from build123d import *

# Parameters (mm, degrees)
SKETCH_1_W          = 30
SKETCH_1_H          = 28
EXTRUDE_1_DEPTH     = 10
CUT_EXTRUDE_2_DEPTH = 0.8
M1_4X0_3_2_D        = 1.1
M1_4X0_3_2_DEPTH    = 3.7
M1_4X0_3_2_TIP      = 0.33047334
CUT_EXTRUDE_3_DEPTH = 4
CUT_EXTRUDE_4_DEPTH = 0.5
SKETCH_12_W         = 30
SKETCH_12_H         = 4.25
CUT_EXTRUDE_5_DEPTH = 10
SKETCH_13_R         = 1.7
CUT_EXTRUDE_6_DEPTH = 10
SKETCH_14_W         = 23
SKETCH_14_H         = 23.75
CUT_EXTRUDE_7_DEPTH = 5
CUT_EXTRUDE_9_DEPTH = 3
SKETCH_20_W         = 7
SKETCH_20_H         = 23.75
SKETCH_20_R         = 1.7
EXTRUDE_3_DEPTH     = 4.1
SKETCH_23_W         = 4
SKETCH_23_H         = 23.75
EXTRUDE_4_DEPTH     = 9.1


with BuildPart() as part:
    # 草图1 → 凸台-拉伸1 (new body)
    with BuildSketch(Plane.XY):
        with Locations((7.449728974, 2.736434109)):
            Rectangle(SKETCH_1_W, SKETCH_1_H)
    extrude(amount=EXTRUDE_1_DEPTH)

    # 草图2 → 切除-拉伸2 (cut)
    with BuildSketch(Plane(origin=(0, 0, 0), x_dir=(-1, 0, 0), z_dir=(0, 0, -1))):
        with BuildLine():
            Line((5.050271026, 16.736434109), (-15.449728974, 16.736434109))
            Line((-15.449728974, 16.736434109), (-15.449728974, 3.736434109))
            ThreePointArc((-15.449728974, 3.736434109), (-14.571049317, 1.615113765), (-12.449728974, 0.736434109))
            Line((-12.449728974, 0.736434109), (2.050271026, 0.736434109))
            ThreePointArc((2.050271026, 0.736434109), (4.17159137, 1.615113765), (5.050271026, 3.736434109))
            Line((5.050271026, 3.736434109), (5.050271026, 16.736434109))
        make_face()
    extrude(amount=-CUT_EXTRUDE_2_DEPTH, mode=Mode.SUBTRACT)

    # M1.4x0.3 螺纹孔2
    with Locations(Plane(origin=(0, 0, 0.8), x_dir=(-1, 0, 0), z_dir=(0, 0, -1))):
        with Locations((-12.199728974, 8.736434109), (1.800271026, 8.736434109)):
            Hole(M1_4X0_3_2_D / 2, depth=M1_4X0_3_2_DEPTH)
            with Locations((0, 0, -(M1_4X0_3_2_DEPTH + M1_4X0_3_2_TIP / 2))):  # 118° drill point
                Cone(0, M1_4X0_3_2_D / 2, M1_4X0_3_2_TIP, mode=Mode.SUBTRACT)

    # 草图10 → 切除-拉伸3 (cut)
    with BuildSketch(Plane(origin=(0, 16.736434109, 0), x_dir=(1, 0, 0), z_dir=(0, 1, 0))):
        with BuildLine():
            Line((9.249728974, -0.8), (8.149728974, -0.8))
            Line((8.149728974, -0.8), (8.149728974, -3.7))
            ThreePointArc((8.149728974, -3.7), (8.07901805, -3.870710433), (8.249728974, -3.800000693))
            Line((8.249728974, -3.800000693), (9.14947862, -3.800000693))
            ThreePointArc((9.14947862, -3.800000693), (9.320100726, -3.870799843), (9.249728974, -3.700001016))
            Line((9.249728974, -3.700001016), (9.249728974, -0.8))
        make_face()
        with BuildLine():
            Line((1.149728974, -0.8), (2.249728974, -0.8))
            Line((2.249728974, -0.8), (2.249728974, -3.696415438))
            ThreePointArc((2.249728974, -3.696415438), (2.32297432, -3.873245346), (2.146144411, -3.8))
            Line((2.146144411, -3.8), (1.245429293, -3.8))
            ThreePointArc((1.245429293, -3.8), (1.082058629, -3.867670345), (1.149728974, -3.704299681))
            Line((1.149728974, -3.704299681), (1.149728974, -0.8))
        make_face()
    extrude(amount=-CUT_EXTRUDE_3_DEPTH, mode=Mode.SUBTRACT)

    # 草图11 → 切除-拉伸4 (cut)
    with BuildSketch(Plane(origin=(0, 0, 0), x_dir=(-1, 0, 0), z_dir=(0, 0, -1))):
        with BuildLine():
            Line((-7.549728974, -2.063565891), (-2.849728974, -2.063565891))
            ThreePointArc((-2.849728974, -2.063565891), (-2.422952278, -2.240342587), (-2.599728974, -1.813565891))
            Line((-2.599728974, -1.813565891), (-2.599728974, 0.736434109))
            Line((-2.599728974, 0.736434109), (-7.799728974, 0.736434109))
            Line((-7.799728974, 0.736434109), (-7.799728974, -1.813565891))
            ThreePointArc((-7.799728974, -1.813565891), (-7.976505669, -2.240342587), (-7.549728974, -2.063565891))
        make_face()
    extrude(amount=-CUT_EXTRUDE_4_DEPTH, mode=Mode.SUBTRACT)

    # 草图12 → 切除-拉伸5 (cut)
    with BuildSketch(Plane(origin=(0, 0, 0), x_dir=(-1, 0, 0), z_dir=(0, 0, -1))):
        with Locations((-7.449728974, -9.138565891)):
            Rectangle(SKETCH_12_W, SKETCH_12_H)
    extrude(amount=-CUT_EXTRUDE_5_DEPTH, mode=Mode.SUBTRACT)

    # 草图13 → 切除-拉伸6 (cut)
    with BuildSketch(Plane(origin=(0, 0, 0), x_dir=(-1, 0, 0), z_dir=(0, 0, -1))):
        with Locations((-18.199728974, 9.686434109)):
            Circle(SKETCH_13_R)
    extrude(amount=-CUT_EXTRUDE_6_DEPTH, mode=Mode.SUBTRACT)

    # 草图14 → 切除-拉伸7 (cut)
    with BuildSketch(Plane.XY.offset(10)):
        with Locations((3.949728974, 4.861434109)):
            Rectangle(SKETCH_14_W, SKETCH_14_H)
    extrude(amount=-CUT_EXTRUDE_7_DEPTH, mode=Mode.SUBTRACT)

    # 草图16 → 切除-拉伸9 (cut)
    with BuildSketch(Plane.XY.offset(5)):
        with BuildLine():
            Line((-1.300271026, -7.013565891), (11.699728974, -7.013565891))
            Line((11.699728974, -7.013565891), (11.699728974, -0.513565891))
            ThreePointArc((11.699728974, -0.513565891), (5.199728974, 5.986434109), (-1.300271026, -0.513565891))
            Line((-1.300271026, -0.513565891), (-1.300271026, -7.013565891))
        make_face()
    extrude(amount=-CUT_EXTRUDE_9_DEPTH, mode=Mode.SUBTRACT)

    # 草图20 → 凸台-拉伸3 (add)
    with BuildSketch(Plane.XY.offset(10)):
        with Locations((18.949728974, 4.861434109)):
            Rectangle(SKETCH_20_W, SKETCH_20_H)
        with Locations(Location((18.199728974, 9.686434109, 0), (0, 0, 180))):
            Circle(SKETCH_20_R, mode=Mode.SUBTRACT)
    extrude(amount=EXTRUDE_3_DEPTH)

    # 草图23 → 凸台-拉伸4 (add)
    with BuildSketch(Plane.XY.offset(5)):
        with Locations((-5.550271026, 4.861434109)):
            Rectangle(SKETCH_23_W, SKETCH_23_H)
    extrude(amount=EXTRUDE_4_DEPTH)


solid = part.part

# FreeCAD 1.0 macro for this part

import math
import FreeCAD as App
import Part
import Sketcher
Q = App.Units.Quantity

doc = App.newDocument("Part")
params = doc.addObject("Spreadsheet::Sheet", "Params")
for row, (alias, value) in enumerate([
    ("sketch1_width", "30 mm"),
    ("sketch1_height", "28 mm"),
    ("pad1_length", "10 mm"),
    ("sketch2_radius", "3 mm"),
    ("sketch2_height", "13 mm"),
    ("sketch2_width", "20.5 mm"),
    ("pocket1_length", "0.8 mm"),
    ("sketch3_diameter", "1.1 mm"),
    ("hole_diameter", "1.1 mm"),
    ("hole_depth", "3.7 mm"),
    ("sketch4_radius", "0.1 mm"),
    ("sketch4_width", "1.1 mm"),
    ("sketch4_height", "2.9 mm"),
    ("pocket2_length", "4 mm"),
    ("sketch5_radius", "0.25 mm"),
    ("sketch5_width", "4.7 mm"),
    ("sketch5_width2", "5.2 mm"),
    ("sketch5_height", "2.55 mm"),
    ("pocket3_length", "0.5 mm"),
    ("sketch6_width", "30 mm"),
    ("sketch6_height", "4.25 mm"),
    ("pocket4_length", "10 mm"),
    ("sketch7_diameter", "3.4 mm"),
    ("pocket5_length", "10 mm"),
    ("sketch8_width", "23 mm"),
    ("sketch8_height", "23.75 mm"),
    ("pocket6_length", "5 mm"),
    ("sketch9_radius", "6.5 mm"),
    ("sketch9_height", "6.5 mm"),
    ("pocket7_length", "3 mm"),
    ("sketch10_diameter", "3.4 mm"),
    ("sketch10_width", "7 mm"),
    ("sketch10_height", "23.75 mm"),
    ("pad2_length", "4.1 mm"),
    ("sketch11_width", "4 mm"),
    ("sketch11_height", "23.75 mm"),
    ("pad3_length", "9.1 mm"),
], start=1):
    params.set(f"A{row}", alias)
    params.set(f"B{row}", "=" + value)
    params.setAlias(f"B{row}", alias)

body = doc.addObject("PartDesign::Body", "Body")

# Sketch on XY plane
sketch1 = body.newObject("Sketcher::SketchObject", "Sketch")
sketch1.AttachmentSupport = (doc.getObject("XY_Plane"), [""])
sketch1.MapMode = "FlatFace"
sketch1.addGeometry([
    Part.LineSegment(App.Vector(-8, 17, 0), App.Vector(-8, -11, 0)),
    Part.LineSegment(App.Vector(-8, -11, 0), App.Vector(22, -11, 0)),
    Part.LineSegment(App.Vector(22, -11, 0), App.Vector(22, 17, 0)),
    Part.LineSegment(App.Vector(22, 17, 0), App.Vector(-8, 17, 0)),
], False)
sketch1.addConstraint([
    Sketcher.Constraint("Coincident", 0, 2, 1, 1),
    Sketcher.Constraint("Coincident", 1, 2, 2, 1),
    Sketcher.Constraint("Coincident", 2, 2, 3, 1),
    Sketcher.Constraint("Coincident", 3, 2, 0, 1),
    Sketcher.Constraint("Vertical", 0),
    Sketcher.Constraint("Horizontal", 1),
    Sketcher.Constraint("Vertical", 2),
    Sketcher.Constraint("Horizontal", 3),
    Sketcher.Constraint("DistanceX", 1, 1, 1, 2, Q("30 mm")),
    Sketcher.Constraint("DistanceY", 0, 2, 0, 1, Q("28 mm")),
    Sketcher.Constraint("DistanceX", 0, 2, -1, 1, Q("7.550271 mm")),
    Sketcher.Constraint("DistanceY", 0, 2, -1, 1, Q("11.263566 mm")),
])
sketch1.setExpression("Constraints[8]", "Params.sketch1_width")
sketch1.setExpression("Constraints[9]", "Params.sketch1_height")
pad1 = body.newObject("PartDesign::Pad", "Pad")
pad1.Profile = sketch1
pad1.setExpression("Length", "Params.pad1_length")

# Sketch on XY plane
sketch2 = body.newObject("Sketcher::SketchObject", "Sketch001")
sketch2.AttachmentSupport = (doc.getObject("XY_Plane"), [""])
sketch2.MapMode = "FlatFace"
sketch2.addGeometry([
    Part.LineSegment(App.Vector(-5.1, 16.7, 0), App.Vector(15.4, 16.7, 0)),  # 0
    Part.LineSegment(App.Vector(15.4, 16.7, 0), App.Vector(15.4, 3.7, 0)),  # 1
    Part.ArcOfCircle(Part.Circle(App.Vector(12.4, 3.7, 0), App.Vector(0, 0, 1), 3), math.radians(-90), math.radians(0)),  # 2
    Part.LineSegment(App.Vector(12.4, 0.7, 0), App.Vector(-2.1, 0.7, 0)),  # 3
    Part.ArcOfCircle(Part.Circle(App.Vector(-2.1, 3.7, 0), App.Vector(0, 0, 1), 3), math.radians(180), math.radians(270)),  # 4
    Part.LineSegment(App.Vector(-5.1, 3.7, 0), App.Vector(-5.1, 16.7, 0)),  # 5
], False)
sketch2.addConstraint([
    Sketcher.Constraint("Coincident", 0, 2, 1, 1),
    Sketcher.Constraint("Tangent", 1, 2, 2, 2),
    Sketcher.Constraint("Tangent", 2, 1, 3, 1),
    Sketcher.Constraint("Tangent", 3, 2, 4, 2),
    Sketcher.Constraint("Tangent", 4, 1, 5, 1),
    Sketcher.Constraint("Coincident", 5, 2, 0, 1),
    Sketcher.Constraint("Horizontal", 0),
    Sketcher.Constraint("Vertical", 1),
    Sketcher.Constraint("Horizontal", 3),
    Sketcher.Constraint("Vertical", 5),
    Sketcher.Constraint("Equal", 2, 4),
    Sketcher.Constraint("Radius", 2, Q("3 mm")),
    Sketcher.Constraint("DistanceY", 1, 2, 1, 1, Q("13 mm")),
    Sketcher.Constraint("DistanceX", 0, 1, 0, 2, Q("20.5 mm")),
    Sketcher.Constraint("DistanceX", -1, 1, 2, 3, Q("12.449729 mm")),
    Sketcher.Constraint("DistanceY", -1, 1, 2, 3, Q("3.736434 mm")),
])
sketch2.setExpression("Constraints[11]", "Params.sketch2_radius")
sketch2.setExpression("Constraints[12]", "Params.sketch2_height")
sketch2.setExpression("Constraints[13]", "Params.sketch2_width")
pocket1 = body.newObject("PartDesign::Pocket", "Pocket")
pocket1.Profile = sketch2
pocket1.setExpression("Length", "Params.pocket1_length")
pocket1.Reversed = True

# Sketch on XY plane
sketch3 = body.newObject("Sketcher::SketchObject", "Sketch002")
sketch3.AttachmentSupport = (doc.getObject("XY_Plane"), [""])
sketch3.MapMode = "FlatFace"
sketch3.AttachmentOffset = App.Placement(App.Vector(0, 0, 0.8), App.Rotation())
sketch3.addGeometry([
    Part.Circle(App.Vector(12.2, 8.7, 0), App.Vector(0, 0, 1), 0.6),
    Part.Circle(App.Vector(-1.8, 8.7, 0), App.Vector(0, 0, 1), 0.6),
], False)
sketch3.addConstraint([
    Sketcher.Constraint("Equal", 0, 1),
    Sketcher.Constraint("Horizontal", 0, 3, 1, 3),
    Sketcher.Constraint("Diameter", 0, Q("1.1 mm")),
    Sketcher.Constraint("DistanceX", 1, 3, 0, 3, Q("14 mm")),
    Sketcher.Constraint("DistanceX", -1, 1, 0, 3, Q("12.199729 mm")),
    Sketcher.Constraint("DistanceY", -1, 1, 0, 3, Q("8.736434 mm")),
])
sketch3.setExpression("Constraints[2]", "Params.sketch3_diameter")
doc.recompute()
hole = body.newObject("PartDesign::Hole", "Hole")
hole.Profile = sketch3
hole.ThreadType = "None"
hole.setExpression("Diameter", "Params.hole_diameter")
hole.DepthType = "Dimension"
hole.setExpression("Depth", "Params.hole_depth")
hole.DrillPoint = "Angled"
hole.DrillPointAngle = 118
hole.Reversed = True

# Sketch on XZ plane
sketch4 = body.newObject("Sketcher::SketchObject", "Sketch003")
sketch4.AttachmentSupport = (doc.getObject("XZ_Plane"), [""])
sketch4.MapMode = "FlatFace"
sketch4.AttachmentOffset = App.Placement(App.Vector(0, 0, -16.736434), App.Rotation())
sketch4.addGeometry([
    Part.LineSegment(App.Vector(9.25, 0.8, 0), App.Vector(8.15, 0.8, 0)),  # 0
    Part.LineSegment(App.Vector(8.15, 0.8, 0), App.Vector(8.15, 3.7, 0)),  # 1
    Part.ArcOfCircle(Part.Circle(App.Vector(8.15, 3.8, 0), App.Vector(0, 0, 1), 0.1), math.radians(0), math.radians(270)),  # 2
    Part.LineSegment(App.Vector(8.25, 3.8, 0), App.Vector(9.15, 3.8, 0)),  # 3
    Part.ArcOfCircle(Part.Circle(App.Vector(9.25, 3.8, 0), App.Vector(0, 0, 1), 0.1), math.radians(-90), math.radians(180)),  # 4
    Part.LineSegment(App.Vector(9.25, 3.7, 0), App.Vector(9.25, 0.8, 0)),  # 5
    Part.LineSegment(App.Vector(2.25, 0.8, 0), App.Vector(1.15, 0.8, 0)),  # 6
    Part.LineSegment(App.Vector(1.15, 0.8, 0), App.Vector(1.15, 3.7, 0)),  # 7
    Part.ArcOfCircle(Part.Circle(App.Vector(1.15, 3.8, 0), App.Vector(0, 0, 1), 0.1), math.radians(0), math.radians(270)),  # 8
    Part.LineSegment(App.Vector(1.25, 3.8, 0), App.Vector(2.15, 3.8, 0)),  # 9
    Part.ArcOfCircle(Part.Circle(App.Vector(2.25, 3.8, 0), App.Vector(0, 0, 1), 0.1), math.radians(-90), math.radians(180)),  # 10
    Part.LineSegment(App.Vector(2.25, 3.7, 0), App.Vector(2.25, 0.8, 0)),  # 11
], False)
sketch4.addConstraint([
    Sketcher.Constraint("Coincident", 0, 2, 1, 1),
    Sketcher.Constraint("Coincident", 1, 2, 2, 2),
    Sketcher.Constraint("Coincident", 2, 1, 3, 1),
    Sketcher.Constraint("Coincident", 3, 2, 4, 2),
    Sketcher.Constraint("Coincident", 4, 1, 5, 1),
    Sketcher.Constraint("Coincident", 5, 2, 0, 1),
    Sketcher.Constraint("Coincident", 6, 2, 7, 1),
    Sketcher.Constraint("Coincident", 7, 2, 8, 2),
    Sketcher.Constraint("Coincident", 8, 1, 9, 1),
    Sketcher.Constraint("Coincident", 9, 2, 10, 2),
    Sketcher.Constraint("Coincident", 10, 1, 11, 1),
    Sketcher.Constraint("Coincident", 11, 2, 6, 1),
    Sketcher.Constraint("Horizontal", 0),
    Sketcher.Constraint("Vertical", 1),
    Sketcher.Constraint("Horizontal", 3),
    Sketcher.Constraint("Vertical", 5),
    Sketcher.Constraint("Horizontal", 6),
    Sketcher.Constraint("Vertical", 7),
    Sketcher.Constraint("Horizontal", 9),
    Sketcher.Constraint("Vertical", 11),
    Sketcher.Constraint("Equal", 2, 4),
    Sketcher.Constraint("Horizontal", 2, 3, 4, 3),
    Sketcher.Constraint("Horizontal", 4, 3, 8, 3),
    Sketcher.Constraint("Horizontal", 8, 3, 10, 3),
    Sketcher.Constraint("Horizontal", 10, 3, 2, 1),
    Sketcher.Constraint("Horizontal", 5, 2, 6, 2),
    Sketcher.Constraint("Horizontal", 3, 2, 8, 1),
    Sketcher.Constraint("Vertical", 2, 3, 0, 2),
    Sketcher.Constraint("Vertical", 8, 3, 6, 2),
    Sketcher.Constraint("Equal", 0, 6),
    Sketcher.Constraint("Radius", 2, Q("0.1 mm")),
    Sketcher.Constraint("DistanceX", 0, 2, 0, 1, Q("1.1 mm")),
    Sketcher.Constraint("DistanceY", 1, 1, 1, 2, Q("2.9 mm")),
    Sketcher.Constraint("DistanceX", 8, 3, 2, 3, Q("7 mm")),
    Sketcher.Constraint("DistanceX", 10, 3, 2, 1, Q("6 mm")),
    Sketcher.Constraint("DistanceY", -1, 1, 2, 3, Q("3.8 mm")),
    Sketcher.Constraint("Radius", 8, Q("0.0957 mm")),
    Sketcher.Constraint("Radius", 10, Q("0.103585 mm")),
    Sketcher.Constraint("DistanceX", 3, 1, 3, 2, Q("0.89975 mm")),
    Sketcher.Constraint("DistanceX", -1, 1, 2, 3, Q("8.149729 mm")),
])
sketch4.setExpression("Constraints[30]", "Params.sketch4_radius")
sketch4.setExpression("Constraints[31]", "Params.sketch4_width")
sketch4.setExpression("Constraints[32]", "Params.sketch4_height")
pocket2 = body.newObject("PartDesign::Pocket", "Pocket001")
pocket2.Profile = sketch4
pocket2.setExpression("Length", "Params.pocket2_length")
pocket2.Reversed = True

# Sketch on XY plane
sketch5 = body.newObject("Sketcher::SketchObject", "Sketch004")
sketch5.AttachmentSupport = (doc.getObject("XY_Plane"), [""])
sketch5.MapMode = "FlatFace"
sketch5.addGeometry([
    Part.LineSegment(App.Vector(7.55, -2.06, 0), App.Vector(2.85, -2.06, 0)),  # 0
    Part.ArcOfCircle(Part.Circle(App.Vector(2.6, -2.06, 0), App.Vector(0, 0, 1), 0.25), math.radians(90), math.radians(360)),  # 1
    Part.LineSegment(App.Vector(2.6, -1.81, 0), App.Vector(2.6, 0.74, 0)),  # 2
    Part.LineSegment(App.Vector(2.6, 0.74, 0), App.Vector(7.8, 0.74, 0)),  # 3
    Part.LineSegment(App.Vector(7.8, 0.74, 0), App.Vector(7.8, -1.81, 0)),  # 4
    Part.ArcOfCircle(Part.Circle(App.Vector(7.8, -2.06, 0), App.Vector(0, 0, 1), 0.25), math.radians(180), math.radians(450)),  # 5
], False)
sketch5.addConstraint([
    Sketcher.Constraint("Coincident", 0, 2, 1, 2),
    Sketcher.Constraint("Coincident", 1, 1, 2, 1),
    Sketcher.Constraint("Coincident", 2, 2, 3, 1),
    Sketcher.Constraint("Coincident", 3, 2, 4, 1),
    Sketcher.Constraint("Coincident", 4, 2, 5, 2),
    Sketcher.Constraint("Coincident", 5, 1, 0, 1),
    Sketcher.Constraint("Horizontal", 0),
    Sketcher.Constraint("Vertical", 2),
    Sketcher.Constraint("Horizontal", 3),
    Sketcher.Constraint("Vertical", 4),
    Sketcher.Constraint("Equal", 1, 5),
    Sketcher.Constraint("Horizontal", 1, 3, 5, 3),
    Sketcher.Constraint("Horizontal", 5, 3, 0, 2),
    Sketcher.Constraint("Vertical", 5, 3, 3, 2),
    Sketcher.Constraint("Radius", 1, Q("0.25 mm")),
    Sketcher.Constraint("DistanceX", 0, 2, 0, 1, Q("4.7 mm")),
    Sketcher.Constraint("DistanceX", 3, 1, 3, 2, Q("5.2 mm")),
    Sketcher.Constraint("DistanceY", 2, 1, 2, 2, Q("2.55 mm")),
    Sketcher.Constraint("DistanceX", -1, 1, 1, 3, Q("2.599729 mm")),
    Sketcher.Constraint("DistanceY", 1, 3, -1, 1, Q("2.063566 mm")),
])
sketch5.setExpression("Constraints[14]", "Params.sketch5_radius")
sketch5.setExpression("Constraints[15]", "Params.sketch5_width")
sketch5.setExpression("Constraints[16]", "Params.sketch5_width2")
sketch5.setExpression("Constraints[17]", "Params.sketch5_height")
pocket3 = body.newObject("PartDesign::Pocket", "Pocket002")
pocket3.Profile = sketch5
pocket3.setExpression("Length", "Params.pocket3_length")
pocket3.Reversed = True

# Sketch on XY plane
sketch6 = body.newObject("Sketcher::SketchObject", "Sketch005")
sketch6.AttachmentSupport = (doc.getObject("XY_Plane"), [""])
sketch6.MapMode = "FlatFace"
sketch6.addGeometry([
    Part.LineSegment(App.Vector(22.4, -7, 0), App.Vector(22.4, -11.3, 0)),
    Part.LineSegment(App.Vector(22.4, -11.3, 0), App.Vector(-7.6, -11.3, 0)),
    Part.LineSegment(App.Vector(-7.6, -11.3, 0), App.Vector(-7.6, -7, 0)),
    Part.LineSegment(App.Vector(-7.6, -7, 0), App.Vector(22.4, -7, 0)),
], False)
sketch6.addConstraint([
    Sketcher.Constraint("Coincident", 0, 2, 1, 1),
    Sketcher.Constraint("Coincident", 1, 2, 2, 1),
    Sketcher.Constraint("Coincident", 2, 2, 3, 1),
    Sketcher.Constraint("Coincident", 3, 2, 0, 1),
    Sketcher.Constraint("Vertical", 0),
    Sketcher.Constraint("Horizontal", 1),
    Sketcher.Constraint("Vertical", 2),
    Sketcher.Constraint("Horizontal", 3),
    Sketcher.Constraint("DistanceX", 1, 2, 1, 1, Q("30 mm")),
    Sketcher.Constraint("DistanceY", 0, 2, 0, 1, Q("4.25 mm")),
    Sketcher.Constraint("DistanceX", -1, 1, 0, 2, Q("22.449729 mm")),
    Sketcher.Constraint("DistanceY", 0, 2, -1, 1, Q("11.263566 mm")),
])
sketch6.setExpression("Constraints[8]", "Params.sketch6_width")
sketch6.setExpression("Constraints[9]", "Params.sketch6_height")
pocket4 = body.newObject("PartDesign::Pocket", "Pocket003")
pocket4.Profile = sketch6
pocket4.setExpression("Length", "Params.pocket4_length")
pocket4.Reversed = True

# Sketch on XY plane
sketch7 = body.newObject("Sketcher::SketchObject", "Sketch006")
sketch7.AttachmentSupport = (doc.getObject("XY_Plane"), [""])
sketch7.MapMode = "FlatFace"
sketch7.addGeometry(Part.Circle(App.Vector(18.2, 9.7, 0), App.Vector(0, 0, 1), 1.7), False)
sketch7.addConstraint([
    Sketcher.Constraint("Diameter", 0, Q("3.4 mm")),
    Sketcher.Constraint("DistanceX", -1, 1, 0, 3, Q("18.199729 mm")),
    Sketcher.Constraint("DistanceY", -1, 1, 0, 3, Q("9.686434 mm")),
])
sketch7.setExpression("Constraints[0]", "Params.sketch7_diameter")
pocket5 = body.newObject("PartDesign::Pocket", "Pocket004")
pocket5.Profile = sketch7
pocket5.setExpression("Length", "Params.pocket5_length")
pocket5.Reversed = True

# Sketch on XY plane
sketch8 = body.newObject("Sketcher::SketchObject", "Sketch007")
sketch8.AttachmentSupport = (doc.getObject("XY_Plane"), [""])
sketch8.MapMode = "FlatFace"
sketch8.AttachmentOffset = App.Placement(App.Vector(0, 0, 10), App.Rotation())
sketch8.addGeometry([
    Part.LineSegment(App.Vector(-8, 17, 0), App.Vector(-8, -7, 0)),
    Part.LineSegment(App.Vector(-8, -7, 0), App.Vector(15, -7, 0)),
    Part.LineSegment(App.Vector(15, -7, 0), App.Vector(15, 17, 0)),
    Part.LineSegment(App.Vector(15, 17, 0), App.Vector(-8, 17, 0)),
], False)
sketch8.addConstraint([
    Sketcher.Constraint("Coincident", 0, 2, 1, 1),
    Sketcher.Constraint("Coincident", 1, 2, 2, 1),
    Sketcher.Constraint("Coincident", 2, 2, 3, 1),
    Sketcher.Constraint("Coincident", 3, 2, 0, 1),
    Sketcher.Constraint("Vertical", 0),
    Sketcher.Constraint("Horizontal", 1),
    Sketcher.Constraint("Vertical", 2),
    Sketcher.Constraint("Horizontal", 3),
    Sketcher.Constraint("DistanceX", 1, 1, 1, 2, Q("23 mm")),
    Sketcher.Constraint("DistanceY", 0, 2, 0, 1, Q("23.75 mm")),
    Sketcher.Constraint("DistanceX", 0, 2, -1, 1, Q("7.550271 mm")),
    Sketcher.Constraint("DistanceY", 0, 2, -1, 1, Q("7.013566 mm")),
])
sketch8.setExpression("Constraints[8]", "Params.sketch8_width")
sketch8.setExpression("Constraints[9]", "Params.sketch8_height")
pocket6 = body.newObject("PartDesign::Pocket", "Pocket005")
pocket6.Profile = sketch8
pocket6.setExpression("Length", "Params.pocket6_length")

# Sketch on XY plane
sketch9 = body.newObject("Sketcher::SketchObject", "Sketch008")
sketch9.AttachmentSupport = (doc.getObject("XY_Plane"), [""])
sketch9.MapMode = "FlatFace"
sketch9.AttachmentOffset = App.Placement(App.Vector(0, 0, 5), App.Rotation())
sketch9.addGeometry([
    Part.LineSegment(App.Vector(-1, -7, 0), App.Vector(12, -7, 0)),
    Part.LineSegment(App.Vector(12, -7, 0), App.Vector(12, -1, 0)),
    Part.ArcOfCircle(Part.Circle(App.Vector(5, -1, 0), App.Vector(0, 0, 1), 6), math.radians(0), math.radians(180)),
    Part.LineSegment(App.Vector(-1, -1, 0), App.Vector(-1, -7, 0)),
], False)
sketch9.addConstraint([
    Sketcher.Constraint("Coincident", 0, 2, 1, 1),
    Sketcher.Constraint("Tangent", 1, 2, 2, 1),
    Sketcher.Constraint("Tangent", 2, 2, 3, 1),
    Sketcher.Constraint("Coincident", 3, 2, 0, 1),
    Sketcher.Constraint("Horizontal", 0),
    Sketcher.Constraint("Vertical", 1),
    Sketcher.Constraint("Vertical", 3),
    Sketcher.Constraint("Radius", 2, Q("6.5 mm")),
    Sketcher.Constraint("DistanceY", 1, 1, 1, 2, Q("6.5 mm")),
    Sketcher.Constraint("DistanceX", -1, 1, 2, 3, Q("5.199729 mm")),
    Sketcher.Constraint("DistanceY", 2, 3, -1, 1, Q("0.513566 mm")),
])
sketch9.setExpression("Constraints[7]", "Params.sketch9_radius")
sketch9.setExpression("Constraints[8]", "Params.sketch9_height")
pocket7 = body.newObject("PartDesign::Pocket", "Pocket006")
pocket7.Profile = sketch9
pocket7.setExpression("Length", "Params.pocket7_length")

# Sketch on XY plane
sketch10 = body.newObject("Sketcher::SketchObject", "Sketch009")
sketch10.AttachmentSupport = (doc.getObject("XY_Plane"), [""])
sketch10.MapMode = "FlatFace"
sketch10.AttachmentOffset = App.Placement(App.Vector(0, 0, 10), App.Rotation())
sketch10.addGeometry([
    Part.LineSegment(App.Vector(15.4, 16.7, 0), App.Vector(15.4, -7, 0)),  # 0
    Part.LineSegment(App.Vector(15.4, -7, 0), App.Vector(22.4, -7, 0)),  # 1
    Part.LineSegment(App.Vector(22.4, -7, 0), App.Vector(22.4, 16.7, 0)),  # 2
    Part.LineSegment(App.Vector(22.4, 16.7, 0), App.Vector(15.4, 16.7, 0)),  # 3
    Part.Circle(App.Vector(18.2, 9.7, 0), App.Vector(0, 0, 1), 1.7),  # 4
], False)
sketch10.addConstraint([
    Sketcher.Constraint("Coincident", 0, 2, 1, 1),
    Sketcher.Constraint("Coincident", 1, 2, 2, 1),
    Sketcher.Constraint("Coincident", 2, 2, 3, 1),
    Sketcher.Constraint("Coincident", 3, 2, 0, 1),
    Sketcher.Constraint("Vertical", 0),
    Sketcher.Constraint("Horizontal", 1),
    Sketcher.Constraint("Vertical", 2),
    Sketcher.Constraint("Horizontal", 3),
    Sketcher.Constraint("Diameter", 4, Q("3.4 mm")),
    Sketcher.Constraint("DistanceX", 1, 1, 1, 2, Q("7 mm")),
    Sketcher.Constraint("DistanceY", 0, 2, 0, 1, Q("23.75 mm")),
    Sketcher.Constraint("DistanceY", 0, 2, 4, 3, Q("16.7 mm")),
    Sketcher.Constraint("DistanceX", 0, 2, 4, 3, Q("2.75 mm")),
    Sketcher.Constraint("DistanceX", -1, 1, 4, 3, Q("18.199729 mm")),
    Sketcher.Constraint("DistanceY", -1, 1, 4, 3, Q("9.686434 mm")),
])
sketch10.setExpression("Constraints[8]", "Params.sketch10_diameter")
sketch10.setExpression("Constraints[9]", "Params.sketch10_width")
sketch10.setExpression("Constraints[10]", "Params.sketch10_height")
pad2 = body.newObject("PartDesign::Pad", "Pad001")
pad2.Profile = sketch10
pad2.setExpression("Length", "Params.pad2_length")

# Sketch on XY plane
sketch11 = body.newObject("Sketcher::SketchObject", "Sketch010")
sketch11.AttachmentSupport = (doc.getObject("XY_Plane"), [""])
sketch11.MapMode = "FlatFace"
sketch11.AttachmentOffset = App.Placement(App.Vector(0, 0, 5), App.Rotation())
sketch11.addGeometry([
    Part.LineSegment(App.Vector(-7.6, 16.7, 0), App.Vector(-7.6, -7, 0)),
    Part.LineSegment(App.Vector(-7.6, -7, 0), App.Vector(-3.6, -7, 0)),
    Part.LineSegment(App.Vector(-3.6, -7, 0), App.Vector(-3.6, 16.7, 0)),
    Part.LineSegment(App.Vector(-3.6, 16.7, 0), App.Vector(-7.6, 16.7, 0)),
], False)
sketch11.addConstraint([
    Sketcher.Constraint("Coincident", 0, 2, 1, 1),
    Sketcher.Constraint("Coincident", 1, 2, 2, 1),
    Sketcher.Constraint("Coincident", 2, 2, 3, 1),
    Sketcher.Constraint("Coincident", 3, 2, 0, 1),
    Sketcher.Constraint("Vertical", 0),
    Sketcher.Constraint("Horizontal", 1),
    Sketcher.Constraint("Vertical", 2),
    Sketcher.Constraint("Horizontal", 3),
    Sketcher.Constraint("DistanceX", 1, 1, 1, 2, Q("4 mm")),
    Sketcher.Constraint("DistanceY", 0, 2, 0, 1, Q("23.75 mm")),
    Sketcher.Constraint("DistanceX", 0, 2, -1, 1, Q("7.550271 mm")),
    Sketcher.Constraint("DistanceY", 0, 2, -1, 1, Q("7.013566 mm")),
])
sketch11.setExpression("Constraints[8]", "Params.sketch11_width")
sketch11.setExpression("Constraints[9]", "Params.sketch11_height")
pad3 = body.newObject("PartDesign::Pad", "Pad002")
pad3.Profile = sketch11
pad3.setExpression("Length", "Params.pad3_length")

doc.recompute()
